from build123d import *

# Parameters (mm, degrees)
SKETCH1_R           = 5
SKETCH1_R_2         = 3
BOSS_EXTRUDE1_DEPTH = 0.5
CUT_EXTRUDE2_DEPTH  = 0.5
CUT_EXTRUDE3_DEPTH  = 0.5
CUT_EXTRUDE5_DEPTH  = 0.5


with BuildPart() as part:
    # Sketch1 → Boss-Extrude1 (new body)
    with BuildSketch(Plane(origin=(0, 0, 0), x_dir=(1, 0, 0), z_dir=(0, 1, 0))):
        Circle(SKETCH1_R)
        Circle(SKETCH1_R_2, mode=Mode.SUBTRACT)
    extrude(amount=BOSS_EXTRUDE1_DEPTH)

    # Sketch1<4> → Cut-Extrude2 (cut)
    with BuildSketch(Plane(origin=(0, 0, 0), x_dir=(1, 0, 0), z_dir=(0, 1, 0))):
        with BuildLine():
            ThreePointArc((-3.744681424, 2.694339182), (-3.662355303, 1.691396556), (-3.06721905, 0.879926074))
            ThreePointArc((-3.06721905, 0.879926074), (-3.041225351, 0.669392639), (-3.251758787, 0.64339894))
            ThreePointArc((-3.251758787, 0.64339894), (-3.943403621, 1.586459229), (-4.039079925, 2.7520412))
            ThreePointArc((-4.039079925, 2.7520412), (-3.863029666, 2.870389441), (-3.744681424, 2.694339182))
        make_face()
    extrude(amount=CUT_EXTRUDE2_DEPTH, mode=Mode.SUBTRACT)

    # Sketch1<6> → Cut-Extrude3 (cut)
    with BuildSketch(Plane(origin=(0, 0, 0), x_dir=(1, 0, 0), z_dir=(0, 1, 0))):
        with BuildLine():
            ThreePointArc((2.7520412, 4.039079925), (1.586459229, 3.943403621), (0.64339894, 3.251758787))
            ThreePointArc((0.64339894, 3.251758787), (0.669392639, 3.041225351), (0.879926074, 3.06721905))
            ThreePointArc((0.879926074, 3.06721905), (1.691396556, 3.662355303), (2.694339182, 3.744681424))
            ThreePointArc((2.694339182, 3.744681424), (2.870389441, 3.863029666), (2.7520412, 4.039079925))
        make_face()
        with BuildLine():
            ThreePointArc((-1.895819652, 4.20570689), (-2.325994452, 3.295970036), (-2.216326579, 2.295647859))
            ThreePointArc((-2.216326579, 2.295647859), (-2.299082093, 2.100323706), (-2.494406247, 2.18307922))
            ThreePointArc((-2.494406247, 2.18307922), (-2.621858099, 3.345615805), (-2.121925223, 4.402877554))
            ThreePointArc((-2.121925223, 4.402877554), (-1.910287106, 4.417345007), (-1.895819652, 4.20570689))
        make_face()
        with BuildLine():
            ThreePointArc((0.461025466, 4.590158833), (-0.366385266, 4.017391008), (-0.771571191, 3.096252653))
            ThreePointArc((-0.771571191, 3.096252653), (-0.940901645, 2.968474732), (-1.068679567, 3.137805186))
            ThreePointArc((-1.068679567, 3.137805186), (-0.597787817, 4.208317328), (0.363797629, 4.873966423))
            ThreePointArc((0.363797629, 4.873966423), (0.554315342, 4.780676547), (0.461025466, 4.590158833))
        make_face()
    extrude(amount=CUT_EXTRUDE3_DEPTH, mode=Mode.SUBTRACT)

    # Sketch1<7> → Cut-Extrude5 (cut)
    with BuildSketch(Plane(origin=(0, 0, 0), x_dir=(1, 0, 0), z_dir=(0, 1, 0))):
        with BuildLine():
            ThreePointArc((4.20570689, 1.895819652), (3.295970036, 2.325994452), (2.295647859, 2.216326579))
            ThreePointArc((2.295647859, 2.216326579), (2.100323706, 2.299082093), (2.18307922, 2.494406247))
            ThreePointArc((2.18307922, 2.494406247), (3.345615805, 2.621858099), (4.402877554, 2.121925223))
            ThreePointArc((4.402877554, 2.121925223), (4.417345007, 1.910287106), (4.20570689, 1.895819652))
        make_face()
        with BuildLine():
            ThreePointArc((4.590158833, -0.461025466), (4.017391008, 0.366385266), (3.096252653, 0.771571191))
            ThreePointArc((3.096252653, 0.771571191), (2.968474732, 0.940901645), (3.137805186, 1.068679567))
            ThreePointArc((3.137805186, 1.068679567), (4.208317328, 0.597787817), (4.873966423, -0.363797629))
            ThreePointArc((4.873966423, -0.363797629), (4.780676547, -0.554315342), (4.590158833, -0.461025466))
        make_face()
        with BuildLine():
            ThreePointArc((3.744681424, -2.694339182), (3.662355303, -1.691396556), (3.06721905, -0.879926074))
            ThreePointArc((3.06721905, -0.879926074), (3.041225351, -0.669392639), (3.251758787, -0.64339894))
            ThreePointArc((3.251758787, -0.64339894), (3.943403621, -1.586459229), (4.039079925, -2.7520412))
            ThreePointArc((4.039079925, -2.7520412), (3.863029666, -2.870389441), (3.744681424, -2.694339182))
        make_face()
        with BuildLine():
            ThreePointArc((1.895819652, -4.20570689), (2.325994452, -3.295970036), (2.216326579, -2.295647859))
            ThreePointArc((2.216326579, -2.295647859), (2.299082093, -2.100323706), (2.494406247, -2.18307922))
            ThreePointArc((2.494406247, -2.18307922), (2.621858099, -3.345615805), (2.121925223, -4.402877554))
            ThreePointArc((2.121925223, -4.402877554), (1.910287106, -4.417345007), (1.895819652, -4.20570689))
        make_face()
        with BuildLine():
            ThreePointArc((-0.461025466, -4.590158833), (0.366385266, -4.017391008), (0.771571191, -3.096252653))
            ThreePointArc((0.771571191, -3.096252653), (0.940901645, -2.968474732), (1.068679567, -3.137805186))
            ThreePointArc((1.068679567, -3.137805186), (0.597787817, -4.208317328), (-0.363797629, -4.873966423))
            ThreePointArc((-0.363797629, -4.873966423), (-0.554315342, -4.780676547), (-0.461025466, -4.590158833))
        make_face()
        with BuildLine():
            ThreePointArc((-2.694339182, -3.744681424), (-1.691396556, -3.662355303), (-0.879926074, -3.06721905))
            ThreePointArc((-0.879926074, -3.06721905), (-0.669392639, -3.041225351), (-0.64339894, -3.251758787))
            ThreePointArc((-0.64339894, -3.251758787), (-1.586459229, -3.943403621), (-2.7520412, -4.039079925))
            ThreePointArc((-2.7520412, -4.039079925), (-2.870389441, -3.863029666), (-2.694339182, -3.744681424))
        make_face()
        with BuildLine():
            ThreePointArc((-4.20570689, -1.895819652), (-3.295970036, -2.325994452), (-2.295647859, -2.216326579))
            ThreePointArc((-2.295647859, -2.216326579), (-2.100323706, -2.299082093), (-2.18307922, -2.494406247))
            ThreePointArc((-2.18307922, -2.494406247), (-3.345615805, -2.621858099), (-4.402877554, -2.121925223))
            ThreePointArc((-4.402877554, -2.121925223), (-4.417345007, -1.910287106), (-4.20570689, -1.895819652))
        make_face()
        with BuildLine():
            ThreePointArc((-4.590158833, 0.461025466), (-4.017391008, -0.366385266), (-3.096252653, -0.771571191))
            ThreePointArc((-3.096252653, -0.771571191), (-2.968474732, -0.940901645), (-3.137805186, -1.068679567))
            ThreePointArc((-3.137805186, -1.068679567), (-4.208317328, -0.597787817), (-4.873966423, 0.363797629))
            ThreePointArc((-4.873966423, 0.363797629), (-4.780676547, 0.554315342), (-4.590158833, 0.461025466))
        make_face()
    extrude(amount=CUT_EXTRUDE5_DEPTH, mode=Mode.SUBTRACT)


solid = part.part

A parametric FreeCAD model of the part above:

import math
import FreeCAD as App
import Part
import Sketcher
from FreeCAD import Vector
Q = App.Units.Quantity

doc = App.newDocument("Part")
body = doc.addObject("PartDesign::Body", "Body")

# Sketch on XZ plane
sketch1 = body.newObject("Sketcher::SketchObject", "Sketch")
sketch1.AttachmentSupport = (doc.getObject("XZ_Plane"), [""])
sketch1.MapMode = "FlatFace"
sketch1.addGeometry(Part.Circle(Vector(0, 0, 0), Vector(0, 0, 1), 5), False)
sketch1.addGeometry(Part.Circle(Vector(0, 0, 0), Vector(0, 0, 1), 3), False)
sketch1.addConstraint(Sketcher.Constraint("Coincident", 0, 3, -1, 1))
sketch1.addConstraint(Sketcher.Constraint("Coincident", 1, 3, -1, 1))
sketch1.addConstraint(Sketcher.Constraint("Diameter", 0, Q("10 mm")))
sketch1.addConstraint(Sketcher.Constraint("Diameter", 1, Q("6 mm")))
pad1 = body.newObject("PartDesign::Pad", "Pad")
pad1.Profile = sketch1
pad1.Length = 0.5
pad1.Reversed = True

# Sketch on XZ plane
sketch2 = body.newObject("Sketcher::SketchObject", "Sketch001")
sketch2.AttachmentSupport = (doc.getObject("XZ_Plane"), [""])
sketch2.MapMode = "FlatFace"
sketch2.addGeometry(Part.ArcOfCircle(Part.Circle(Vector(-1.93, -2.34, 0), Vector(0, 0, 1), 1.85), math.radians(128), math.radians(191)), False)
sketch2.addGeometry(Part.ArcOfCircle(Part.Circle(Vector(-3.89, -2.72, 0), Vector(0, 0, 1), 0.15), math.radians(-169), math.radians(11)), False)
sketch2.addGeometry(Part.ArcOfCircle(Part.Circle(Vector(-1.93, -2.34, 0), Vector(0, 0, 1), 2.15), math.radians(128), math.radians(191)), False)
sketch2.addGeometry(Part.ArcOfCircle(Part.Circle(Vector(-3.16, -0.76, 0), Vector(0, 0, 1), 0.15), math.radians(-52), math.radians(128)), False)
sketch2.addConstraint(Sketcher.Constraint("Tangent", 0, 2, 1, 2))
sketch2.addConstraint(Sketcher.Constraint("Tangent", 1, 1, 2, 2))
sketch2.addConstraint(Sketcher.Constraint("Tangent", 2, 1, 3, 2))
sketch2.addConstraint(Sketcher.Constraint("Tangent", 3, 1, 0, 1))
sketch2.addConstraint(Sketcher.Constraint("Coincident", 2, 3, 0, 3))
sketch2.addConstraint(Sketcher.Constraint("Radius", 0, Q("1.85 mm")))
sketch2.addConstraint(Sketcher.Constraint("Radius", 1, Q("0.15 mm")))
sketch2.addConstraint(Sketcher.Constraint("DistanceY", 2, 1, -1, 1, Q("0.643399 mm")))
sketch2.addConstraint(Sketcher.Constraint("DistanceX", 1, 3, 0, 2, Q("0.147199 mm")))
sketch2.addConstraint(Sketcher.Constraint("DistanceY", 0, 3, -1, 1, Q("2.33851 mm")))
sketch2.addConstraint(Sketcher.Constraint("DistanceX", 1, 3, -1, 1, Q("3.891881 mm")))
pocket1 = body.newObject("PartDesign::Pocket", "Pocket")
pocket1.Profile = sketch2
pocket1.Length = 0.5

# Sketch on XZ plane
sketch3 = body.newObject("Sketcher::SketchObject", "Sketch002")
sketch3.AttachmentSupport = (doc.getObject("XZ_Plane"), [""])
sketch3.MapMode = "FlatFace"
sketch3.addGeometry(Part.ArcOfCircle(Part.Circle(Vector(2.33851, -1.929224, 0), Vector(0, 0, 1), 2.15), math.radians(-142.038454), math.radians(-78.910621)), False)
sketch3.addGeometry(Part.ArcOfCircle(Part.Circle(Vector(0.761663, -3.159489, 0), Vector(0, 0, 1), 0.15), math.radians(37.961545), math.radians(217.961546)), False)
sketch3.addGeometry(Part.ArcOfCircle(Part.Circle(Vector(2.33851, -1.929224, 0), Vector(0, 0, 1), 1.85), math.radians(-142.038455), math.radians(-78.910621)), False)
sketch3.addGeometry(Part.ArcOfCircle(Part.Circle(Vector(2.72319, -3.891881, 0), Vector(0, 0, 1), 0.15), math.radians(-78.910621), math.radians(101.089379)), False)
sketch3.addGeometry(Part.ArcOfCircle(Part.Circle(Vector(-0.501502, -2.989821, 0), Vector(0, 0, 1), 1.85), math.radians(157.961546), math.radians(221.089379)), False)
sketch3.addGeometry(Part.ArcOfCircle(Part.Circle(Vector(-2.008872, -4.304292, 0), Vector(0, 0, 1), 0.15), math.radians(-138.91062), math.radians(41.089379)), False)
sketch3.addGeometry(Part.ArcOfCircle(Part.Circle(Vector(-0.501502, -2.989821, 0), Vector(0, 0, 1), 2.15), math.radians(157.961546), math.radians(221.089379)), False)
sketch3.addGeometry(Part.ArcOfCircle(Part.Circle(Vector(-2.355366, -2.239364, 0), Vector(0, 0, 1), 0.15), math.radians(-22.038454), math.radians(157.961545)), False)
sketch3.addGeometry(Part.ArcOfCircle(Part.Circle(Vector(1.060597, -2.840012, 0), Vector(0, 0, 1), 1.85), math.radians(-172.038455), math.radians(-108.910621)), False)
sketch3.addGeometry(Part.ArcOfCircle(Part.Circle(Vector(0.412412, -4.732063, 0), Vector(0, 0, 1), 0.15), math.radians(-108.910621), math.radians(71.089379)), False)
sketch3.addGeometry(Part.ArcOfCircle(Part.Circle(Vector(1.060597, -2.840012, 0), Vector(0, 0, 1), 2.15), math.radians(-172.038455), math.radians(-108.910621)), False)
sketch3.addGeometry(Part.ArcOfCircle(Part.Circle(Vector(-0.920125, -3.117029, 0), Vector(0, 0, 1), 0.15), math.radians(7.961546), math.radians(187.961545)), False)
sketch3.addConstraint(Sketcher.Constraint("Coincident", 0, 1, 1, 2))
sketch3.addConstraint(Sketcher.Constraint("Coincident", 1, 1, 2, 1))
sketch3.addConstraint(Sketcher.Constraint("Coincident", 2, 2, 3, 2))
sketch3.addConstraint(Sketcher.Constraint("Coincident", 3, 1, 0, 2))
sketch3.addConstraint(Sketcher.Constraint("Coincident", 4, 2, 5, 2))
sketch3.addConstraint(Sketcher.Constraint("Coincident", 5, 1, 6, 2))
sketch3.addConstraint(Sketcher.Constraint("Coincident", 6, 1, 7, 2))
sketch3.addConstraint(Sketcher.Constraint("Coincident", 7, 1, 4, 1))
sketch3.addConstraint(Sketcher.Constraint("Coincident", 8, 2, 9, 2))
sketch3.addConstraint(Sketcher.Constraint("Coincident", 9, 1, 10, 2))
sketch3.addConstraint(Sketcher.Constraint("Coincident", 10, 1, 11, 2))
sketch3.addConstraint(Sketcher.Constraint("Coincident", 11, 1, 8, 1))
sketch3.addConstraint(Sketcher.Constraint("Coincident", 2, 3, 0, 3))
sketch3.addConstraint(Sketcher.Constraint("Coincident", 6, 3, 4, 3))
sketch3.addConstraint(Sketcher.Constraint("Coincident", 10, 3, 8, 3))
sketch3.addConstraint(Sketcher.Constraint("Radius", 0, Q("2.15 mm")))
sketch3.addConstraint(Sketcher.Constraint("Radius", 1, Q("0.15 mm")))
sketch3.addConstraint(Sketcher.Constraint("Radius", 4, Q("1.85 mm")))
sketch3.addConstraint(Sketcher.Constraint("Radius", 5, Q("0.15 mm")))
sketch3.addConstraint(Sketcher.Constraint("Radius", 8, Q("1.85 mm")))
sketch3.addConstraint(Sketcher.Constraint("Radius", 9, Q("0.15 mm")))
sketch3.addConstraint(Sketcher.Constraint("DistanceX", 4, 3, -1, 1, Q("0.501502 mm")))
sketch3.addConstraint(Sketcher.Constraint("DistanceX", -1, 1, 0, 1, Q("0.643399 mm")))
sketch3.addConstraint(Sketcher.Constraint("DistanceX", 6, 3, 8, 3, Q("1.562099 mm")))
sketch3.addConstraint(Sketcher.Constraint("DistanceY", 3, 3, 2, 2, Q("0.147199 mm")))
sketch3.addConstraint(Sketcher.Constraint("DistanceY", 3, 1, 3, 3, Q("0.147199 mm")))
sketch3.addConstraint(Sketcher.Constraint("DistanceX", 5, 1, 11, 3, Q("1.2018 mm")))
sketch3.addConstraint(Sketcher.Constraint("DistanceX", 7, 1, 11, 3, Q("1.296201 mm")))
sketch3.addConstraint(Sketcher.Constraint("DistanceY", 8, 2, 0, 1, Q("1.3384 mm")))
sketch3.addConstraint(Sketcher.Constraint("DistanceX", 8, 2, 1, 1, Q("0.418901 mm")))
sketch3.addConstraint(Sketcher.Constraint("DistanceX", 9, 1, 0, 1, Q("0.279601 mm")))
sketch3.addConstraint(Sketcher.Constraint("DistanceY", 4, 2, 10, 1, Q("1.067902 mm")))
sketch3.addConstraint(Sketcher.Constraint("DistanceX", -1, 1, 0, 3, Q("2.33851 mm")))
sketch3.addConstraint(Sketcher.Constraint("DistanceY", 1, 3, -1, 1, Q("3.159489 mm")))
sketch3.addConstraint(Sketcher.Constraint("DistanceX", -1, 1, 3, 3, Q("2.72319 mm")))
sketch3.addConstraint(Sketcher.Constraint("DistanceY", 3, 3, -1, 1, Q("3.891881 mm")))
sketch3.addConstraint(Sketcher.Constraint("DistanceY", 4, 3, -1, 1, Q("2.989821 mm")))
sketch3.addConstraint(Sketcher.Constraint("DistanceX", -1, 1, 9, 3, Q("0.412412 mm")))
sketch3.addConstraint(Sketcher.Constraint("DistanceY", 11, 3, -1, 1, Q("3.117029 mm")))
sketch3.addConstraint(Sketcher.Constraint("DistanceY", 1, 1, -1, 1, Q("3.067219 mm")))
sketch3.addConstraint(Sketcher.Constraint("DistanceX", 4, 2, -1, 1, Q("1.89582 mm")))
sketch3.addConstraint(Sketcher.Constraint("DistanceY", 6, 1, -1, 1, Q("2.183079 mm")))
sketch3.addConstraint(Sketcher.Constraint("DistanceX", 11, 1, -1, 1, Q("0.771571 mm")))
sketch3.addConstraint(Sketcher.Constraint("DistanceX", 5, 3, 4, 3, Q("1.50737 mm")))
sketch3.addConstraint(Sketcher.Constraint("DistanceY", 5, 3, 7, 3, Q("2.064929 mm")))
pocket2 = body.newObject("PartDesign::Pocket", "Pocket001")
pocket2.Profile = sketch3
pocket2.Length = 0.5

# Sketch on XZ plane
sketch4 = body.newObject("Sketcher::SketchObject", "Sketch003")
sketch4.AttachmentSupport = (doc.getObject("XZ_Plane"), [""])
sketch4.MapMode = "FlatFace"
sketch4.addGeometry(Part.ArcOfCircle(Part.Circle(Vector(2.99, -0.5, 0), Vector(0, 0, 1), 1.85), math.radians(-112), math.radians(-49)), False)
sketch4.addGeometry(Part.ArcOfCircle(Part.Circle(Vector(4.3, -2.01, 0), Vector(0, 0, 1), 0.15), math.radians(-49), math.radians(131)), False)
sketch4.addGeometry(Part.ArcOfCircle(Part.Circle(Vector(2.99, -0.5, 0), Vector(0, 0, 1), 2.15), math.radians(-112), math.radians(-49)), False)
sketch4.addGeometry(Part.ArcOfCircle(Part.Circle(Vector(2.24, -2.36, 0), Vector(0, 0, 1), 0.15), math.radians(68), math.radians(248)), False)
sketch4.addGeometry(Part.ArcOfCircle(Part.Circle(Vector(2.84, 1.06, 0), Vector(0, 0, 1), 1.85), math.radians(-82), math.radians(-19)), False)
sketch4.addGeometry(Part.ArcOfCircle(Part.Circle(Vector(4.73, 0.41, 0), Vector(0, 0, 1), 0.15), math.radians(-19), math.radians(161)), False)
sketch4.addGeometry(Part.ArcOfCircle(Part.Circle(Vector(2.84, 1.06, 0), Vector(0, 0, 1), 2.15), math.radians(-82), math.radians(-19)), False)
sketch4.addGeometry(Part.ArcOfCircle(Part.Circle(Vector(3.12, -0.92, 0), Vector(0, 0, 1), 0.15), math.radians(98), math.radians(278)), False)
sketch4.addGeometry(Part.ArcOfCircle(Part.Circle(Vector(1.93, 2.34, 0), Vector(0, 0, 1), 1.85), math.radians(-52), math.radians(11)), False)
sketch4.addGeometry(Part.ArcOfCircle(Part.Circle(Vector(3.89, 2.72, 0), Vector(0, 0, 1), 0.15), math.radians(11), math.radians(191)), False)
sketch4.addGeometry(Part.ArcOfCircle(Part.Circle(Vector(1.93, 2.34, 0), Vector(0, 0, 1), 2.15), math.radians(-52), math.radians(11)), False)
sketch4.addGeometry(Part.ArcOfCircle(Part.Circle(Vector(3.16, 0.76, 0), Vector(0, 0, 1), 0.15), math.radians(128), math.radians(308)), False)
sketch4.addGeometry(Part.ArcOfCircle(Part.Circle(Vector(0.5, 2.99, 0), Vector(0, 0, 1), 1.85), math.radians(-22), math.radians(41)), False)
sketch4.addGeometry(Part.ArcOfCircle(Part.Circle(Vector(2.01, 4.3, 0), Vector(0, 0, 1), 0.15), math.radians(41), math.radians(221)), False)
sketch4.addGeometry(Part.ArcOfCircle(Part.Circle(Vector(0.5, 2.99, 0), Vector(0, 0, 1), 2.15), math.radians(-22), math.radians(41)), False)
sketch4.addGeometry(Part.ArcOfCircle(Part.Circle(Vector(2.36, 2.24, 0), Vector(0, 0, 1), 0.15), math.radians(158), math.radians(338)), False)
sketch4.addGeometry(Part.ArcOfCircle(Part.Circle(Vector(-1.06, 2.84, 0), Vector(0, 0, 1), 1.85), math.radians(8), math.radians(71)), False)
sketch4.addGeometry(Part.ArcOfCircle(Part.Circle(Vector(-0.41, 4.73, 0), Vector(0, 0, 1), 0.15), math.radians(71), math.radians(251)), False)
sketch4.addGeometry(Part.ArcOfCircle(Part.Circle(Vector(-1.06, 2.84, 0), Vector(0, 0, 1), 2.15), math.radians(8), math.radians(71)), False)
sketch4.addGeometry(Part.ArcOfCircle(Part.Circle(Vector(0.92, 3.12, 0), Vector(0, 0, 1), 0.15), math.radians(-172), math.radians(8)), False)
sketch4.addGeometry(Part.ArcOfCircle(Part.Circle(Vector(-2.34, 1.93, 0), Vector(0, 0, 1), 1.85), math.radians(38), math.radians(101)), False)
sketch4.addGeometry(Part.ArcOfCircle(Part.Circle(Vector(-2.72, 3.89, 0), Vector(0, 0, 1), 0.15), math.radians(101), math.radians(281)), False)
sketch4.addGeometry(Part.ArcOfCircle(Part.Circle(Vector(-2.34, 1.93, 0), Vector(0, 0, 1), 2.15), math.radians(38), math.radians(101)), False)
sketch4.addGeometry(Part.ArcOfCircle(Part.Circle(Vector(-0.76, 3.16, 0), Vector(0, 0, 1), 0.15), math.radians(-142), math.radians(38)), False)
sketch4.addGeometry(Part.ArcOfCircle(Part.Circle(Vector(-2.99, 0.5, 0), Vector(0, 0, 1), 1.85), math.radians(68), math.radians(131)), False)
sketch4.addGeometry(Part.ArcOfCircle(Part.Circle(Vector(-4.3, 2.01, 0), Vector(0, 0, 1), 0.15), math.radians(131), math.radians(311)), False)
sketch4.addGeometry(Part.ArcOfCircle(Part.Circle(Vector(-2.99, 0.5, 0), Vector(0, 0, 1), 2.15), math.radians(68), math.radians(131)), False)
sketch4.addGeometry(Part.ArcOfCircle(Part.Circle(Vector(-2.24, 2.36, 0), Vector(0, 0, 1), 0.15), math.radians(-112), math.radians(68)), False)
sketch4.addGeometry(Part.ArcOfCircle(Part.Circle(Vector(-2.84, -1.06, 0), Vector(0, 0, 1), 1.85), math.radians(98), math.radians(161)), False)
sketch4.addGeometry(Part.ArcOfCircle(Part.Circle(Vector(-4.73, -0.41, 0), Vector(0, 0, 1), 0.15), math.radians(161), math.radians(341)), False)
sketch4.addGeometry(Part.ArcOfCircle(Part.Circle(Vector(-2.84, -1.06, 0), Vector(0, 0, 1), 2.15), math.radians(98), math.radians(161)), False)
sketch4.addGeometry(Part.ArcOfCircle(Part.Circle(Vector(-3.12, 0.92, 0), Vector(0, 0, 1), 0.15), math.radians(-82), math.radians(98)), False)
sketch4.addConstraint(Sketcher.Constraint("Tangent", 0, 2, 1, 2))
sketch4.addConstraint(Sketcher.Constraint("Tangent", 1, 1, 2, 2))
sketch4.addConstraint(Sketcher.Constraint("Tangent", 2, 1, 3, 2))
sketch4.addConstraint(Sketcher.Constraint("Tangent", 3, 1, 0, 1))
sketch4.addConstraint(Sketcher.Constraint("Tangent", 4, 2, 5, 2))
sketch4.addConstraint(Sketcher.Constraint("Tangent", 5, 1, 6, 2))
sketch4.addConstraint(Sketcher.Constraint("Tangent", 6, 1, 7, 2))
sketch4.addConstraint(Sketcher.Constraint("Tangent", 7, 1, 4, 1))
sketch4.addConstraint(Sketcher.Constraint("Tangent", 8, 2, 9, 2))
sketch4.addConstraint(Sketcher.Constraint("Tangent", 9, 1, 10, 2))
sketch4.addConstraint(Sketcher.Constraint("Tangent", 10, 1, 11, 2))
sketch4.addConstraint(Sketcher.Constraint("Tangent", 11, 1, 8, 1))
sketch4.addConstraint(Sketcher.Constraint("Tangent", 12, 2, 13, 2))
sketch4.addConstraint(Sketcher.Constraint("Tangent", 13, 1, 14, 2))
sketch4.addConstraint(Sketcher.Constraint("Tangent", 14, 1, 15, 2))
sketch4.addConstraint(Sketcher.Constraint("Tangent", 15, 1, 12, 1))
sketch4.addConstraint(Sketcher.Constraint("Tangent", 16, 2, 17, 2))
sketch4.addConstraint(Sketcher.Constraint("Tangent", 17, 1, 18, 2))
sketch4.addConstraint(Sketcher.Constraint("Tangent", 18, 1, 19, 2))
sketch4.addConstraint(Sketcher.Constraint("Tangent", 19, 1, 16, 1))
sketch4.addConstraint(Sketcher.Constraint("Tangent", 20, 2, 21, 2))
sketch4.addConstraint(Sketcher.Constraint("Tangent", 21, 1, 22, 2))
sketch4.addConstraint(Sketcher.Constraint("Tangent", 22, 1, 23, 2))
sketch4.addConstraint(Sketcher.Constraint("Tangent", 23, 1, 20, 1))
sketch4.addConstraint(Sketcher.Constraint("Tangent", 24, 2, 25, 2))
sketch4.addConstraint(Sketcher.Constraint("Tangent", 25, 1, 26, 2))
sketch4.addConstraint(Sketcher.Constraint("Tangent", 26, 1, 27, 2))
sketch4.addConstraint(Sketcher.Constraint("Tangent", 27, 1, 24, 1))
sketch4.addConstraint(Sketcher.Constraint("Tangent", 28, 2, 29, 2))
sketch4.addConstraint(Sketcher.Constraint("Tangent", 29, 1, 30, 2))
sketch4.addConstraint(Sketcher.Constraint("Tangent", 30, 1, 31, 2))
sketch4.addConstraint(Sketcher.Constraint("Tangent", 31, 1, 28, 1))
sketch4.addConstraint(Sketcher.Constraint("Coincident", 2, 3, 0, 3))
sketch4.addConstraint(Sketcher.Constraint("Coincident", 6, 3, 4, 3))
sketch4.addConstraint(Sketcher.Constraint("Coincident", 10, 3, 8, 3))
sketch4.addConstraint(Sketcher.Constraint("Coincident", 14, 3, 12, 3))
sketch4.addConstraint(Sketcher.Constraint("Coincident", 18, 3, 16, 3))
sketch4.addConstraint(Sketcher.Constraint("Coincident", 22, 3, 20, 3))
sketch4.addConstraint(Sketcher.Constraint("Coincident", 26, 3, 24, 3))
sketch4.addConstraint(Sketcher.Constraint("Coincident", 30, 3, 28, 3))
sketch4.addConstraint(Sketcher.Constraint("Equal", 0, 4))
sketch4.addConstraint(Sketcher.Constraint("Equal", 3, 5))
sketch4.addConstraint(Sketcher.Constraint("Equal", 4, 8))
sketch4.addConstraint(Sketcher.Constraint("Equal", 7, 9))
sketch4.addConstraint(Sketcher.Constraint("Equal", 8, 12))
sketch4.addConstraint(Sketcher.Constraint("Equal", 11, 13))
sketch4.addConstraint(Sketcher.Constraint("Equal", 12, 16))
sketch4.addConstraint(Sketcher.Constraint("Equal", 15, 17))
sketch4.addConstraint(Sketcher.Constraint("Equal", 16, 20))
sketch4.addConstraint(Sketcher.Constraint("Equal", 19, 21))
sketch4.addConstraint(Sketcher.Constraint("Equal", 20, 24))
sketch4.addConstraint(Sketcher.Constraint("Equal", 23, 25))
sketch4.addConstraint(Sketcher.Constraint("Equal", 24, 28))
sketch4.addConstraint(Sketcher.Constraint("Equal", 27, 29))
sketch4.addConstraint(Sketcher.Constraint("Symmetric", 0, 3, 24, 3, -1, 1))
sketch4.addConstraint(Sketcher.Constraint("Symmetric", 4, 3, 28, 3, -1, 1))
sketch4.addConstraint(Sketcher.Constraint("Radius", 0, Q("1.85 mm")))
sketch4.addConstraint(Sketcher.Constraint("Radius", 1, Q("0.15 mm")))
sketch4.addConstraint(Sketcher.Constraint("DistanceY", 0, 3, -1, 1, Q("0.501502 mm")))
sketch4.addConstraint(Sketcher.Constraint("DistanceX", -1, 1, 12, 3, Q("0.501502 mm")))
sketch4.addConstraint(Sketcher.Constraint("DistanceY", -1, 1, 10, 1, Q("0.643399 mm")))
sketch4.addConstraint(Sketcher.Constraint("DistanceX", 22, 1, -1, 1, Q("0.643399 mm")))
sketch4.addConstraint(Sketcher.Constraint("DistanceX", -1, 1, 0, 3, Q("2.989821 mm")))
sketch4.addConstraint(Sketcher.Constraint("DistanceY", -1, 1, 5, 3, Q("0.412412 mm")))
sketch4.addConstraint(Sketcher.Constraint("DistanceX", -1, 1, 7, 3, Q("3.117029 mm")))
sketch4.addConstraint(Sketcher.Constraint("DistanceY", -1, 1, 8, 3, Q("2.33851 mm")))
sketch4.addConstraint(Sketcher.Constraint("DistanceX", -1, 1, 9, 3, Q("3.891881 mm")))
sketch4.addConstraint(Sketcher.Constraint("DistanceY", -1, 1, 9, 3, Q("2.72319 mm")))
sketch4.addConstraint(Sketcher.Constraint("DistanceY", -1, 1, 12, 3, Q("2.989821 mm")))
sketch4.addConstraint(Sketcher.Constraint("DistanceX", 17, 3, -1, 1, Q("0.412412 mm")))
sketch4.addConstraint(Sketcher.Constraint("DistanceY", -1, 1, 19, 3, Q("3.117029 mm")))
sketch4.addConstraint(Sketcher.Constraint("DistanceX", 20, 3, -1, 1, Q("2.33851 mm")))
sketch4.addConstraint(Sketcher.Constraint("DistanceX", 21, 3, -1, 1, Q("2.72319 mm")))
sketch4.addConstraint(Sketcher.Constraint("DistanceY", -1, 1, 21, 3, Q("3.891881 mm")))
sketch4.addConstraint(Sketcher.Constraint("DistanceY", 29, 3, -1, 1, Q("0.412412 mm")))
sketch4.addConstraint(Sketcher.Constraint("DistanceX", 31, 3, -1, 1, Q("3.117029 mm")))
sketch4.addConstraint(Sketcher.Constraint("DistanceY", 0, 2, -1, 1, Q("1.89582 mm")))
sketch4.addConstraint(Sketcher.Constraint("DistanceX", -1, 1, 2, 1, Q("2.183079 mm")))
sketch4.addConstraint(Sketcher.Constraint("DistanceX", -1, 1, 4, 2, Q("4.590159 mm")))
sketch4.addConstraint(Sketcher.Constraint("DistanceY", 6, 1, -1, 1, Q("1.06868 mm")))
sketch4.addConstraint(Sketcher.Constraint("DistanceX", -1, 1, 12, 2, Q("1.89582 mm")))
sketch4.addConstraint(Sketcher.Constraint("DistanceY", -1, 1, 14, 1, Q("2.183079 mm")))
sketch4.addConstraint(Sketcher.Constraint("DistanceY", -1, 1, 16, 2, Q("4.590159 mm")))
sketch4.addConstraint(Sketcher.Constraint("DistanceX", -1, 1, 18, 1, Q("1.06868 mm")))
sketch4.addConstraint(Sketcher.Constraint("DistanceY", -1, 1, 24, 2, Q("1.89582 mm")))
sketch4.addConstraint(Sketcher.Constraint("DistanceX", 26, 1, -1, 1, Q("2.183079 mm")))
pocket3 = body.newObject("PartDesign::Pocket", "Pocket002")
pocket3.Profile = sketch4
pocket3.Length = 0.5

doc.recompute()
